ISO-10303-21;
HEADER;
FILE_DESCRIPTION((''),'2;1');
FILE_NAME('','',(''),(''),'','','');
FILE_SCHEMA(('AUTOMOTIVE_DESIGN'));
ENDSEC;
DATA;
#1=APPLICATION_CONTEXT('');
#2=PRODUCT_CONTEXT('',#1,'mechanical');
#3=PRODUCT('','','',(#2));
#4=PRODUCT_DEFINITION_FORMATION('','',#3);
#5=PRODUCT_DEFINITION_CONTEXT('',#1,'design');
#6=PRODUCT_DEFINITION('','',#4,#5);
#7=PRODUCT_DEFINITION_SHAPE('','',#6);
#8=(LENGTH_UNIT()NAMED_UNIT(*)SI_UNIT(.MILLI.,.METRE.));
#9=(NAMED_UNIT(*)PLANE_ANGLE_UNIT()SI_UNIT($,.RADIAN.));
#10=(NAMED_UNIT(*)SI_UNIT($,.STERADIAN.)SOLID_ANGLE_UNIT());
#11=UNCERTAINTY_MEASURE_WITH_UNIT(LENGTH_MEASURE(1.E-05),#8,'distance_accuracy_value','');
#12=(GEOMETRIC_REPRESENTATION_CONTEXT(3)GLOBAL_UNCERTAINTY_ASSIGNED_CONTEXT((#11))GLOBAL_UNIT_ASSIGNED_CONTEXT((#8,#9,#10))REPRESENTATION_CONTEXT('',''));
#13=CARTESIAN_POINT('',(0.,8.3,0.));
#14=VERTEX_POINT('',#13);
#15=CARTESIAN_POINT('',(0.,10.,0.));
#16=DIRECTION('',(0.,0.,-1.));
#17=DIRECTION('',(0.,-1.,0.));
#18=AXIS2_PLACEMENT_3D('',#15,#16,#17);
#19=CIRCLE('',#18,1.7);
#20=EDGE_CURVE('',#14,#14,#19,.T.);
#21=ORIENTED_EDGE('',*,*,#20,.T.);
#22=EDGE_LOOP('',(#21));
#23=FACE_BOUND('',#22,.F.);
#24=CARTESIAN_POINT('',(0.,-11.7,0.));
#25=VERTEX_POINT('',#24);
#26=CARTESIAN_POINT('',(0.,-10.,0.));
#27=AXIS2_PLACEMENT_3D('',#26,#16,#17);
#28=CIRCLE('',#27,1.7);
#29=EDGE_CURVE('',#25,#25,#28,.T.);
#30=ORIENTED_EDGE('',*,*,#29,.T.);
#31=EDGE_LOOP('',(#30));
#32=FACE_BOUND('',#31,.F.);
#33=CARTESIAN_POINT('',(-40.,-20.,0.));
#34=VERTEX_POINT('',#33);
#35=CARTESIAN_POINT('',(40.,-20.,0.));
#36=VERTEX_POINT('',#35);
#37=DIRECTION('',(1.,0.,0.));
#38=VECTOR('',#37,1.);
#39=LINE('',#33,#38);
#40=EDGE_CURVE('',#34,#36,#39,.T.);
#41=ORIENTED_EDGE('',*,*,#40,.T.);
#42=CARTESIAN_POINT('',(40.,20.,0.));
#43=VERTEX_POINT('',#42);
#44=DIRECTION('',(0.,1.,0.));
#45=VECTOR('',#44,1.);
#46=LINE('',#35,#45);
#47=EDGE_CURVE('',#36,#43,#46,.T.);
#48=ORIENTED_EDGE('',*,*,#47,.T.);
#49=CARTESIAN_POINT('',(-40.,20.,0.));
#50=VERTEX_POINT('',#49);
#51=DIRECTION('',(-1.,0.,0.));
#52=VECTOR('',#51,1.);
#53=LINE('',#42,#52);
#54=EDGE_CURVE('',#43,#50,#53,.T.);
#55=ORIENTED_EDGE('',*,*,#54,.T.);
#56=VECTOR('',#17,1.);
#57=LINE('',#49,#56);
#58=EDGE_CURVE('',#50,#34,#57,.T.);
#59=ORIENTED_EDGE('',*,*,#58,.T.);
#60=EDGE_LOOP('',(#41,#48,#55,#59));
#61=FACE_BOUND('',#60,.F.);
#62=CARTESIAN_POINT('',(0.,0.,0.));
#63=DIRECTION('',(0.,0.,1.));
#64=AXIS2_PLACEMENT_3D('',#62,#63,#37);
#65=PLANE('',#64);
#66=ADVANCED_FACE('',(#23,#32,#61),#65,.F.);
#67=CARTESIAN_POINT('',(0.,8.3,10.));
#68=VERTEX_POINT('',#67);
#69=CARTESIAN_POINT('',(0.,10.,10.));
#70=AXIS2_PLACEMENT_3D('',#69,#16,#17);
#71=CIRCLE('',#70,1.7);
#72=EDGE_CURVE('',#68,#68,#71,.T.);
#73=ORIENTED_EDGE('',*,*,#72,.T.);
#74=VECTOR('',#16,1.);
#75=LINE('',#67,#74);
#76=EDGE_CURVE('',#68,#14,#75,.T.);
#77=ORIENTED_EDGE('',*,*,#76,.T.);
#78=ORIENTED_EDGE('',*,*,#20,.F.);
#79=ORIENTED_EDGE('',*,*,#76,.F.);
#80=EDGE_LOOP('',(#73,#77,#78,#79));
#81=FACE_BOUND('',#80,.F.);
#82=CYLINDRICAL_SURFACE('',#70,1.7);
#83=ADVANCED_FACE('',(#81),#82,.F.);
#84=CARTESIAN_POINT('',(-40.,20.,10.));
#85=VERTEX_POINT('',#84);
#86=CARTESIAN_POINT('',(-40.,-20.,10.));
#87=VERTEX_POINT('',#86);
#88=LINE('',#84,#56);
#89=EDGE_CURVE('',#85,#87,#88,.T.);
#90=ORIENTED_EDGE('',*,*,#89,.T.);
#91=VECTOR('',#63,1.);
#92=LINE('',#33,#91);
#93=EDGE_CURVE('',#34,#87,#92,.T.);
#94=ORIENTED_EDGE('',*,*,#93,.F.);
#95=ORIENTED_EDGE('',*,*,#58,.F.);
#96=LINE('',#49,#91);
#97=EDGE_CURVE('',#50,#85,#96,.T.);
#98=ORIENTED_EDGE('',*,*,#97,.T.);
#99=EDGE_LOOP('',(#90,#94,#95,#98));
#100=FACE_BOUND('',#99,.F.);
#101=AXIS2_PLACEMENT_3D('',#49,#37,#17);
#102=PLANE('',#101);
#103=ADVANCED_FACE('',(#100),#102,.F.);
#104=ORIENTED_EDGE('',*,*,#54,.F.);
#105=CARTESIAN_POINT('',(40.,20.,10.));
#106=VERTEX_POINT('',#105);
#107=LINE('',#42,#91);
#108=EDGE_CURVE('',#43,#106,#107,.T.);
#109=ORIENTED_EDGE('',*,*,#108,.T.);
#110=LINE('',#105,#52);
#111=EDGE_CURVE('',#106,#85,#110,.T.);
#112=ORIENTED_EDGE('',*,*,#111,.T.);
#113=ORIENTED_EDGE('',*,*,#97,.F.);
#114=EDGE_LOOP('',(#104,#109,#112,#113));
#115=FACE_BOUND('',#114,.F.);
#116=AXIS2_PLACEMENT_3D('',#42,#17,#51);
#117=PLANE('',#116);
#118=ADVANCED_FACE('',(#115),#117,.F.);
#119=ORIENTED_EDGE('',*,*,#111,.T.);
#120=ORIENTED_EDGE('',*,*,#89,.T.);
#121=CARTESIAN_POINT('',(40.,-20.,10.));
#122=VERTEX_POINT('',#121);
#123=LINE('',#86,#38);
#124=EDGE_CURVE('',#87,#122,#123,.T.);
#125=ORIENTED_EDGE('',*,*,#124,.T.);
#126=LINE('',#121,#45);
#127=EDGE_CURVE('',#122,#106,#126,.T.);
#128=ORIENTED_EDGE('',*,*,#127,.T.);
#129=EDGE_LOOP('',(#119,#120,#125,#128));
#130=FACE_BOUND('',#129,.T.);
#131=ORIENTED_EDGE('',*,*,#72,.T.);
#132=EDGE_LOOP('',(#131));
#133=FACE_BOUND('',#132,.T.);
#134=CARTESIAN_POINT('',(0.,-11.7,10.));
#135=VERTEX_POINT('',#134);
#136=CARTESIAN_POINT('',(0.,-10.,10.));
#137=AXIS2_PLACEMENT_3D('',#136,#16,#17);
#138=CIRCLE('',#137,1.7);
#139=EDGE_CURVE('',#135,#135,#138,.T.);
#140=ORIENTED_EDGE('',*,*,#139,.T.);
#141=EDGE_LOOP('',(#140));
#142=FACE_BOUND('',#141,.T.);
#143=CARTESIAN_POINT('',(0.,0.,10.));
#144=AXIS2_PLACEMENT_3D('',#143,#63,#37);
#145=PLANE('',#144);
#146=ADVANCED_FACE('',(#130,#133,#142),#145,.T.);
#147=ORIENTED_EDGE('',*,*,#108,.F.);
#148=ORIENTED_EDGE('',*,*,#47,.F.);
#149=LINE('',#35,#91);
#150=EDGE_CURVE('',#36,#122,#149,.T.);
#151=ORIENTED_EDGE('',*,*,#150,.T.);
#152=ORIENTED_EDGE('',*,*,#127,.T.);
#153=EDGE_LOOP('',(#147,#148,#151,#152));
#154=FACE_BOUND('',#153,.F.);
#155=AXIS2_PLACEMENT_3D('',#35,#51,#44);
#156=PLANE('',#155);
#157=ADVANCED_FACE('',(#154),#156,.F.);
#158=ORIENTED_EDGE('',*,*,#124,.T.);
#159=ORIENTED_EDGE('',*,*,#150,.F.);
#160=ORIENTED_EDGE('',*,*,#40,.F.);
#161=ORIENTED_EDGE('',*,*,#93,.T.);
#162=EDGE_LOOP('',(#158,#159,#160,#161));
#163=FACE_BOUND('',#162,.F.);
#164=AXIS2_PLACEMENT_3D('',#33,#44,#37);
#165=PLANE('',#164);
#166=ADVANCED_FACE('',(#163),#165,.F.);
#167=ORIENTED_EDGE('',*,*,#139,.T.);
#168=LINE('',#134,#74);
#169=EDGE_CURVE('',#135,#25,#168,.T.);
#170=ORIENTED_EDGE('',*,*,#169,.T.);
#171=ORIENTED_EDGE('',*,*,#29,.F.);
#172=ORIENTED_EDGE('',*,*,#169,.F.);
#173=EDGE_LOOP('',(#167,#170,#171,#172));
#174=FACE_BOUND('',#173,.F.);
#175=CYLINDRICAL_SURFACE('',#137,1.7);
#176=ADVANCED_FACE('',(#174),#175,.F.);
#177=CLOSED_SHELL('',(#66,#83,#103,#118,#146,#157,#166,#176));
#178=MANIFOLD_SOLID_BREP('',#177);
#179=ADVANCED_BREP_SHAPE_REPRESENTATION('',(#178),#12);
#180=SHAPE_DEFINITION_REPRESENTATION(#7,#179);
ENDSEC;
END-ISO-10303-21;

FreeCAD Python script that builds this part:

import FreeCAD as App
import Part
import Sketcher
Q = App.Units.Quantity


def add_polygon(sketch, points):
    """Adds a closed chain of lines whose ends are joined by coincident constraints."""
    first, n = sketch.GeometryCount, len(points)
    for a, b in zip(points, points[1:] + points[:1]):
        sketch.addGeometry(Part.LineSegment(App.Vector(*a, 0), App.Vector(*b, 0)), False)
    for i in range(n):
        sketch.addConstraint(Sketcher.Constraint("Coincident", first + i, 2, first + (i + 1) % n, 1))

doc = App.newDocument("Part")
body = doc.addObject("PartDesign::Body", "Body")

# Sketch on XY plane
sketch1 = doc.addObject("Sketcher::SketchObject", "Sketch")
body.addObject(sketch1)
sketch1.AttachmentSupport = (doc.XY_Plane, [""])
sketch1.MapMode = "FlatFace"
add_polygon(sketch1, [(-40, 20), (-40, -20), (40, -20), (40, 20)])  # lines 0-3
sketch1.addConstraint(Sketcher.Constraint("Vertical", 0))
sketch1.addConstraint(Sketcher.Constraint("Horizontal", 1))
sketch1.addConstraint(Sketcher.Constraint("Vertical", 2))
sketch1.addConstraint(Sketcher.Constraint("Horizontal", 3))
sketch1.addConstraint(Sketcher.Constraint("Symmetric", 0, 2, 2, 2, -1, 1))
sketch1.addConstraint(Sketcher.Constraint("DistanceX", 1, 1, 1, 2, Q("80 mm")))
sketch1.addConstraint(Sketcher.Constraint("DistanceY", 0, 2, 0, 1, Q("40 mm")))
pad1 = doc.addObject("PartDesign::Pad", "Pad")
body.addObject(pad1)
pad1.Profile = sketch1
pad1.Length = 10

# Sketch on XY plane
sketch2 = doc.addObject("Sketcher::SketchObject", "Sketch001")
body.addObject(sketch2)
sketch2.AttachmentSupport = (doc.XY_Plane, [""])
sketch2.MapMode = "FlatFace"
sketch2.AttachmentOffset = App.Placement(App.Vector(0, 0, 10), App.Rotation())
sketch2.addGeometry(Part.Circle(App.Vector(0, 10, 0), App.Vector(0, 0, 1), 1.7), False)
sketch2.addGeometry(Part.Circle(App.Vector(0, -10, 0), App.Vector(0, 0, 1), 1.7), False)
sketch2.addConstraint(Sketcher.Constraint("Equal", 0, 1))
sketch2.addConstraint(Sketcher.Constraint("Symmetric", 0, 3, 1, 3, -1, 1))
sketch2.addConstraint(Sketcher.Constraint("PointOnObject", 0, 3, -2))
sketch2.addConstraint(Sketcher.Constraint("Diameter", 0, Q("3.4 mm")))
sketch2.addConstraint(Sketcher.Constraint("DistanceY", -1, 1, 0, 3, Q("10 mm")))
doc.recompute()
hole = doc.addObject("PartDesign::Hole", "Hole")
body.addObject(hole)
hole.Profile = sketch2
hole.ThreadType = "None"
hole.Diameter = 3.4
hole.DepthType = "ThroughAll"

doc.recompute()
